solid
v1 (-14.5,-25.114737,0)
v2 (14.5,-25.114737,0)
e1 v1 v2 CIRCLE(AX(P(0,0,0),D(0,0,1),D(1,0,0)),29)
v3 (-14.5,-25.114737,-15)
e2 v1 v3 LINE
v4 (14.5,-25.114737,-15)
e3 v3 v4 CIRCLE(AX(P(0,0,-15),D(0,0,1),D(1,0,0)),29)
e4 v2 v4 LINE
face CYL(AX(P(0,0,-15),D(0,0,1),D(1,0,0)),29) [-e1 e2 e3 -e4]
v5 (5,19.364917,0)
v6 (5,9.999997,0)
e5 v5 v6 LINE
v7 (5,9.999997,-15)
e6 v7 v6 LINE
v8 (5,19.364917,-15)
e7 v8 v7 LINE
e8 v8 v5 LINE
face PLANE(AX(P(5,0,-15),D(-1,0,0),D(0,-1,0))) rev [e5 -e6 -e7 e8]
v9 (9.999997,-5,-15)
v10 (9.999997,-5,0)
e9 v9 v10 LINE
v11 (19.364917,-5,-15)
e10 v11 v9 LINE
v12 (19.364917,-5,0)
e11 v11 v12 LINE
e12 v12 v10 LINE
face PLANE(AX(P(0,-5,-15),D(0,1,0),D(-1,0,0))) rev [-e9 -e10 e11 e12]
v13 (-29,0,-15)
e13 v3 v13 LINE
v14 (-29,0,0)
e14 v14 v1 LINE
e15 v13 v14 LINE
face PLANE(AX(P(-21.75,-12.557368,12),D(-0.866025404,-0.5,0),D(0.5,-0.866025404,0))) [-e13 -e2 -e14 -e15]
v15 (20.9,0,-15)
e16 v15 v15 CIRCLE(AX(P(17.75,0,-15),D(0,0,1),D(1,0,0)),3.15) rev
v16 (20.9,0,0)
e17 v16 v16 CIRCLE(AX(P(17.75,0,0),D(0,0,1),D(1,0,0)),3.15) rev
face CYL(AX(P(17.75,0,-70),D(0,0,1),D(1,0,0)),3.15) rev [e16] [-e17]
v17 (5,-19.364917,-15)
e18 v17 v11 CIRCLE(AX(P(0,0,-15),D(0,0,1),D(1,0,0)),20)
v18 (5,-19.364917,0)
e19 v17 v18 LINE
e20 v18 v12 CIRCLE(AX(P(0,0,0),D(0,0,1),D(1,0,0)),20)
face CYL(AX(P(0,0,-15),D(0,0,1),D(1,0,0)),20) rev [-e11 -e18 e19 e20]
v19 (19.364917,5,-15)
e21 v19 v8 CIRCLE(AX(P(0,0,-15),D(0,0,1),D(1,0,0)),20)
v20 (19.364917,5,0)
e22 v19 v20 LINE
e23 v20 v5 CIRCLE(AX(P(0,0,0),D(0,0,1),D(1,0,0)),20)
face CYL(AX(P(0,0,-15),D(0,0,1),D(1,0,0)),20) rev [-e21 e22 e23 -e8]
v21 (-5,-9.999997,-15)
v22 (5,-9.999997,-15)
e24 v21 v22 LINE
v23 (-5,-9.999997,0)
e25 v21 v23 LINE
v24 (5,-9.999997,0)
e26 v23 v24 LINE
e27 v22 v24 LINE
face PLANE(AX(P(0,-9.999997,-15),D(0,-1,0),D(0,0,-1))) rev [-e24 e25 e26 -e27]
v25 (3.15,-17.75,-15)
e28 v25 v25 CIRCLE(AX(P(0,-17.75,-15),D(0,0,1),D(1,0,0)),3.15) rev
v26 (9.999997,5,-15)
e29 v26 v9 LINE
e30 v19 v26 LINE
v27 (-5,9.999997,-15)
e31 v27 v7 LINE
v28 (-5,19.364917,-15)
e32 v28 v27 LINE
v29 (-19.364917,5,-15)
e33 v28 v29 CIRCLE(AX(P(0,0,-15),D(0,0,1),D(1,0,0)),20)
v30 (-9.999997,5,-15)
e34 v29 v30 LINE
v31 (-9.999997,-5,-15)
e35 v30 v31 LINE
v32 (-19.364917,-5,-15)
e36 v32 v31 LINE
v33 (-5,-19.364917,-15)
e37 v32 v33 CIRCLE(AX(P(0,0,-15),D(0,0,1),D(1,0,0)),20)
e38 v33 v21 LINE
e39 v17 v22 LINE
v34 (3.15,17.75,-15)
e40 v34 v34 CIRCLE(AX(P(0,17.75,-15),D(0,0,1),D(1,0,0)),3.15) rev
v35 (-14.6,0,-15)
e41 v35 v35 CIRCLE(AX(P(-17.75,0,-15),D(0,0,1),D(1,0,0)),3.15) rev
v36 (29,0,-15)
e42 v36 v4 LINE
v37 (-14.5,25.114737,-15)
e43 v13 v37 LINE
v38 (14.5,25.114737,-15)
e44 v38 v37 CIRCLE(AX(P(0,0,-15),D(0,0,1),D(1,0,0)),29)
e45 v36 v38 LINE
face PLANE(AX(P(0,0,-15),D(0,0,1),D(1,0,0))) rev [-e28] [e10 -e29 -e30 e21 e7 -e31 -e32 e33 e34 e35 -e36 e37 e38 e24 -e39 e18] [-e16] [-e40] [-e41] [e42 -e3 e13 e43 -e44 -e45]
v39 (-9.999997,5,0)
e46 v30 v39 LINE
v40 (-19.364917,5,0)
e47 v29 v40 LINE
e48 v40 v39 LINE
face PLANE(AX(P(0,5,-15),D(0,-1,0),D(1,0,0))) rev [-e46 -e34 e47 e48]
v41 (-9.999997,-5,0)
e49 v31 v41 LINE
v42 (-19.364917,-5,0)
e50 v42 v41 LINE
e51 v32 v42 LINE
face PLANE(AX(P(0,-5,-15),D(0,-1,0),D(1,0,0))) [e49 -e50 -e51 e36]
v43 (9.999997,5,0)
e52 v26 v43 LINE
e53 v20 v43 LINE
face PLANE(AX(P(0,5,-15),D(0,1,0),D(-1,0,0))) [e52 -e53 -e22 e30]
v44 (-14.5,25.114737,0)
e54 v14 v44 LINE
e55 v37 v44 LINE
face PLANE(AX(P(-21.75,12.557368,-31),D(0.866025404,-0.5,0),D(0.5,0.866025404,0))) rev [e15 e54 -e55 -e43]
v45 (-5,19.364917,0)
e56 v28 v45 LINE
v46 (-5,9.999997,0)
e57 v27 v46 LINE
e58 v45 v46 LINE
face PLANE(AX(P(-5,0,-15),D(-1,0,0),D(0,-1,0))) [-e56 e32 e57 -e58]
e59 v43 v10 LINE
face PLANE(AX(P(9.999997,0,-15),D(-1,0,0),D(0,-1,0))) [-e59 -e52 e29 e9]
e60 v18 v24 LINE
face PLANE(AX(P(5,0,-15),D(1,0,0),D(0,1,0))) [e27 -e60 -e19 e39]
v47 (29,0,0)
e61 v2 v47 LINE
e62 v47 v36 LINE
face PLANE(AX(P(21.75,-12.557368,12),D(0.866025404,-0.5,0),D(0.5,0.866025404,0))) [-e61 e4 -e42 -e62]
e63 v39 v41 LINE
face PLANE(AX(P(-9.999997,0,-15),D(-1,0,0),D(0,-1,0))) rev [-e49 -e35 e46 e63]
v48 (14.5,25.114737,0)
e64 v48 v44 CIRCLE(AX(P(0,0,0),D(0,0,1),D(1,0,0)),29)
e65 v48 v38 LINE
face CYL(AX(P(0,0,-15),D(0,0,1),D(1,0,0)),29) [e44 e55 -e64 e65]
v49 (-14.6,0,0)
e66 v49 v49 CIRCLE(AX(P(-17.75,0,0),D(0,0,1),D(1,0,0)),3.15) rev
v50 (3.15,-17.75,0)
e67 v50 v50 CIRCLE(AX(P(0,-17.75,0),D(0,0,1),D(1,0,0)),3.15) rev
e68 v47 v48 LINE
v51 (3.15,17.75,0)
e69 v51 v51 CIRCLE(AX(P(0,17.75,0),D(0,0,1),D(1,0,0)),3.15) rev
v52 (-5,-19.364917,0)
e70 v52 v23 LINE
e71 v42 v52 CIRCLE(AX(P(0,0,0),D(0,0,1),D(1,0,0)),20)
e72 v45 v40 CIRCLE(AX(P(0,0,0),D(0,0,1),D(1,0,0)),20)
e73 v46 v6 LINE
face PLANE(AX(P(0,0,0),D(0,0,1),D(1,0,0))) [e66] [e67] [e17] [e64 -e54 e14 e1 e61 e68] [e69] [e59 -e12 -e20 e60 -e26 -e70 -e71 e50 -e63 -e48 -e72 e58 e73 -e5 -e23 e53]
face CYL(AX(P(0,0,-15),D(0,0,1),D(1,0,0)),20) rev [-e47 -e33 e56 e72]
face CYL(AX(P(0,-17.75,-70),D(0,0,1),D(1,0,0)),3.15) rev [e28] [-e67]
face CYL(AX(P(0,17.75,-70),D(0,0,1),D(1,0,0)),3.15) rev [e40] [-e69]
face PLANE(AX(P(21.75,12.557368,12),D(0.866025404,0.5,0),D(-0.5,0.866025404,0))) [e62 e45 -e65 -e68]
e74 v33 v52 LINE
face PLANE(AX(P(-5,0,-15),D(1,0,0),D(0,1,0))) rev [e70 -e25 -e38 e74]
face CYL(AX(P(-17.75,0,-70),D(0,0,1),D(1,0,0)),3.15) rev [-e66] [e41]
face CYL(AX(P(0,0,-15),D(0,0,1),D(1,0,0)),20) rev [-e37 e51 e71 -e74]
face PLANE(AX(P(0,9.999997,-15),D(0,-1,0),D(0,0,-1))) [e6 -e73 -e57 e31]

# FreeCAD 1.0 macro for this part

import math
import FreeCAD as App
import Part
import Sketcher
Q = App.Units.Quantity

doc = App.newDocument("Part")
body = doc.addObject("PartDesign::Body", "Body")

# Sketch on XY plane
sketch1 = body.newObject("Sketcher::SketchObject", "Sketch")
sketch1.AttachmentSupport = (doc.getObject("XY_Plane"), [""])
sketch1.MapMode = "FlatFace"
sketch1.addGeometry(Part.Circle(App.Vector(0, 0, 0), App.Vector(0, 0, 1), 29), False)
sketch1.addGeometry(Part.Circle(App.Vector(0, 0, 0), App.Vector(0, 0, 1), 20), False)
sketch1.addConstraint(Sketcher.Constraint("Coincident", 0, 3, -1, 1))
sketch1.addConstraint(Sketcher.Constraint("Coincident", 1, 3, -1, 1))
sketch1.addConstraint(Sketcher.Constraint("Diameter", 0, 58.0))
sketch1.addConstraint(Sketcher.Constraint("Diameter", 1, 40.0))
pad1 = body.newObject("PartDesign::Pad", "Pad")
pad1.Profile = sketch1
pad1.Length = 15
pad1.Reversed = True

# Sketch on XY plane
sketch2 = body.newObject("Sketcher::SketchObject", "Sketch001")
sketch2.AttachmentSupport = (doc.getObject("XY_Plane"), [""])
sketch2.MapMode = "FlatFace"
sketch2.addGeometry(Part.ArcOfCircle(Part.Circle(App.Vector(0, 0, 0), App.Vector(0, 0, 1), 20), math.radians(0), math.radians(14.48)), False)
sketch2.addGeometry(Part.LineSegment(App.Vector(19, 5, 0), App.Vector(10, 5, 0)), False)
sketch2.addGeometry(Part.LineSegment(App.Vector(10, 5, 0), App.Vector(10, -5, 0)), False)
sketch2.addGeometry(Part.LineSegment(App.Vector(10, -5, 0), App.Vector(19, -5, 0)), False)
sketch2.addGeometry(Part.ArcOfCircle(Part.Circle(App.Vector(0, 0, 0), App.Vector(0, 0, 1), 20), math.radians(-14.48), math.radians(0)), False)
sketch2.addGeometry(Part.ArcOfCircle(Part.Circle(App.Vector(0, 0, 0), App.Vector(0, 0, 1), 20), math.radians(76), math.radians(104)), False)
sketch2.addGeometry(Part.LineSegment(App.Vector(-5, 19, 0), App.Vector(-5, 10, 0)), False)
sketch2.addGeometry(Part.LineSegment(App.Vector(-5, 10, 0), App.Vector(5, 10, 0)), False)
sketch2.addGeometry(Part.LineSegment(App.Vector(5, 10, 0), App.Vector(5, 19, 0)), False)
sketch2.addGeometry(Part.LineSegment(App.Vector(-10, -5, 0), App.Vector(-10, 5, 0)), False)
sketch2.addGeometry(Part.LineSegment(App.Vector(-10, 5, 0), App.Vector(-19, 5, 0)), False)
sketch2.addGeometry(Part.ArcOfCircle(Part.Circle(App.Vector(0, 0, 0), App.Vector(0, 0, 1), 20), math.radians(166), math.radians(194)), False)
sketch2.addGeometry(Part.LineSegment(App.Vector(-19, -5, 0), App.Vector(-10, -5, 0)), False)
sketch2.addGeometry(Part.LineSegment(App.Vector(-5, -10, 0), App.Vector(-5, -19, 0)), False)
sketch2.addGeometry(Part.ArcOfCircle(Part.Circle(App.Vector(0, 0, 0), App.Vector(0, 0, 1), 20), math.radians(-104), math.radians(-76)), False)
sketch2.addGeometry(Part.LineSegment(App.Vector(5, -19, 0), App.Vector(5, -10, 0)), False)
sketch2.addGeometry(Part.LineSegment(App.Vector(5, -10, 0), App.Vector(-5, -10, 0)), False)
sketch2.addConstraint(Sketcher.Constraint("Coincident", 0, 2, 1, 1))
sketch2.addConstraint(Sketcher.Constraint("Coincident", 1, 2, 2, 1))
sketch2.addConstraint(Sketcher.Constraint("Coincident", 2, 2, 3, 1))
sketch2.addConstraint(Sketcher.Constraint("Coincident", 3, 2, 4, 1))
sketch2.addConstraint(Sketcher.Constraint("Tangent", 4, 2, 0, 1))
sketch2.addConstraint(Sketcher.Constraint("Coincident", 5, 2, 6, 1))
sketch2.addConstraint(Sketcher.Constraint("Coincident", 6, 2, 7, 1))
sketch2.addConstraint(Sketcher.Constraint("Coincident", 7, 2, 8, 1))
sketch2.addConstraint(Sketcher.Constraint("Coincident", 8, 2, 5, 1))
sketch2.addConstraint(Sketcher.Constraint("Coincident", 9, 2, 10, 1))
sketch2.addConstraint(Sketcher.Constraint("Coincident", 10, 2, 11, 1))
sketch2.addConstraint(Sketcher.Constraint("Coincident", 11, 2, 12, 1))
sketch2.addConstraint(Sketcher.Constraint("Coincident", 12, 2, 9, 1))
sketch2.addConstraint(Sketcher.Constraint("Coincident", 13, 2, 14, 1))
sketch2.addConstraint(Sketcher.Constraint("Coincident", 14, 2, 15, 1))
sketch2.addConstraint(Sketcher.Constraint("Coincident", 15, 2, 16, 1))
sketch2.addConstraint(Sketcher.Constraint("Coincident", 16, 2, 13, 1))
sketch2.addConstraint(Sketcher.Constraint("Horizontal", 1))
sketch2.addConstraint(Sketcher.Constraint("Vertical", 2))
sketch2.addConstraint(Sketcher.Constraint("Horizontal", 3))
sketch2.addConstraint(Sketcher.Constraint("Vertical", 6))
sketch2.addConstraint(Sketcher.Constraint("Horizontal", 7))
sketch2.addConstraint(Sketcher.Constraint("Vertical", 8))
sketch2.addConstraint(Sketcher.Constraint("Vertical", 9))
sketch2.addConstraint(Sketcher.Constraint("Horizontal", 10))
sketch2.addConstraint(Sketcher.Constraint("Horizontal", 12))
sketch2.addConstraint(Sketcher.Constraint("Vertical", 13))
sketch2.addConstraint(Sketcher.Constraint("Vertical", 15))
sketch2.addConstraint(Sketcher.Constraint("Horizontal", 16))
sketch2.addConstraint(Sketcher.Constraint("Coincident", 0, 3, -1, 1))
sketch2.addConstraint(Sketcher.Constraint("Coincident", 5, 3, -1, 1))
sketch2.addConstraint(Sketcher.Constraint("Coincident", 11, 3, -1, 1))
sketch2.addConstraint(Sketcher.Constraint("Coincident", 14, 3, -1, 1))
sketch2.addConstraint(Sketcher.Constraint("Equal", 0, 4))
sketch2.addConstraint(Sketcher.Constraint("Equal", 4, 5))
sketch2.addConstraint(Sketcher.Constraint("Equal", 5, 11))
sketch2.addConstraint(Sketcher.Constraint("Equal", 11, 14))
sketch2.addConstraint(Sketcher.Constraint("Symmetric", 2, 2, 9, 2, -1, 1))
sketch2.addConstraint(Sketcher.Constraint("Symmetric", 6, 2, 15, 2, -1, 1))
sketch2.addConstraint(Sketcher.Constraint("PointOnObject", 4, 2, -1))
sketch2.addConstraint(Sketcher.Constraint("Horizontal", 5, 2, 8, 2))
sketch2.addConstraint(Sketcher.Constraint("Horizontal", 1, 2, 9, 2))
sketch2.addConstraint(Sketcher.Constraint("Horizontal", 3, 2, 11, 2))
sketch2.addConstraint(Sketcher.Constraint("Horizontal", 13, 2, 14, 2))
sketch2.addConstraint(Sketcher.Constraint("Equal", 16, 2))
sketch2.addConstraint(Sketcher.Constraint("Equal", 12, 6))
sketch2.addConstraint(Sketcher.Constraint("Radius", 0, 20.0))
sketch2.addConstraint(Sketcher.Constraint("DistanceX", 7, 1, 7, 2, 10.0))
sketch2.addConstraint(Sketcher.Constraint("DistanceX", 1, 2, 1, 1, 9.36492))
pad2 = body.newObject("PartDesign::Pad", "Pad001")
pad2.Profile = sketch2
pad2.Length = 15
pad2.Reversed = True

# Sketch on XY plane
sketch3 = body.newObject("Sketcher::SketchObject", "Sketch002")
sketch3.AttachmentSupport = (doc.getObject("XY_Plane"), [""])
sketch3.MapMode = "FlatFace"
sketch3.AttachmentOffset = App.Placement(App.Vector(0, 0, -15), App.Rotation())
sketch3.addGeometry(Part.LineSegment(App.Vector(-14, 25, 0), App.Vector(-29, 0, 0)), False)
sketch3.addGeometry(Part.ArcOfCircle(Part.Circle(App.Vector(0, 0, 0), App.Vector(0, 0, 1), 29), math.radians(120), math.radians(180)), False)
sketch3.addGeometry(Part.LineSegment(App.Vector(29, 0, 0), App.Vector(14, 25, 0)), False)
sketch3.addGeometry(Part.ArcOfCircle(Part.Circle(App.Vector(0, 0, 0), App.Vector(0, 0, 1), 29), math.radians(0), math.radians(60)), False)
sketch3.addGeometry(Part.ArcOfCircle(Part.Circle(App.Vector(0, 0, 0), App.Vector(0, 0, 1), 29), math.radians(-60), math.radians(0)), False)
sketch3.addGeometry(Part.LineSegment(App.Vector(14, -25, 0), App.Vector(29, 0, 0)), False)
sketch3.addGeometry(Part.ArcOfCircle(Part.Circle(App.Vector(0, 0, 0), App.Vector(0, 0, 1), 29), math.radians(180), math.radians(240)), False)
sketch3.addGeometry(Part.LineSegment(App.Vector(-29, 0, 0), App.Vector(-14, -25, 0)), False)
sketch3.addConstraint(Sketcher.Constraint("Coincident", 0, 1, 1, 1))
sketch3.addConstraint(Sketcher.Constraint("Coincident", 1, 2, 0, 2))
sketch3.addConstraint(Sketcher.Constraint("Coincident", 2, 1, 3, 1))
sketch3.addConstraint(Sketcher.Constraint("Coincident", 3, 2, 2, 2))
sketch3.addConstraint(Sketcher.Constraint("Coincident", 4, 1, 5, 1))
sketch3.addConstraint(Sketcher.Constraint("Coincident", 5, 2, 4, 2))
sketch3.addConstraint(Sketcher.Constraint("Coincident", 6, 1, 7, 1))
sketch3.addConstraint(Sketcher.Constraint("Coincident", 7, 2, 6, 2))
sketch3.addConstraint(Sketcher.Constraint("Coincident", 1, 3, -1, 1))
sketch3.addConstraint(Sketcher.Constraint("Coincident", 3, 3, -1, 1))
sketch3.addConstraint(Sketcher.Constraint("Coincident", 4, 3, -1, 1))
sketch3.addConstraint(Sketcher.Constraint("Coincident", 6, 3, -1, 1))
sketch3.addConstraint(Sketcher.Constraint("Coincident", 5, 2, 2, 1))
sketch3.addConstraint(Sketcher.Constraint("Coincident", 6, 1, 1, 2))
sketch3.addConstraint(Sketcher.Constraint("Equal", 1, 3))
sketch3.addConstraint(Sketcher.Constraint("PointOnObject", 1, 2, -1))
sketch3.addConstraint(Sketcher.Constraint("PointOnObject", 2, 1, -1))
sketch3.addConstraint(Sketcher.Constraint("Parallel", 0, 5))
sketch3.addConstraint(Sketcher.Constraint("Parallel", 2, 7))
sketch3.addConstraint(Sketcher.Constraint("Horizontal", 0, 1, 3, 2))
sketch3.addConstraint(Sketcher.Constraint("Radius", 1, 29.0))
sketch3.addConstraint(Sketcher.Constraint("Angle", 0, Q("-120 deg")))
pocket1 = body.newObject("PartDesign::Pocket", "Pocket")
pocket1.Profile = sketch3
pocket1.Type = "ThroughAll"
pocket1.Midplane = True

# Sketch on XY plane
sketch4 = body.newObject("Sketcher::SketchObject", "Sketch003")
sketch4.AttachmentSupport = (doc.getObject("XY_Plane"), [""])
sketch4.MapMode = "FlatFace"
sketch4.AttachmentOffset = App.Placement(App.Vector(0, 0, -15), App.Rotation())
sketch4.addGeometry(Part.Circle(App.Vector(17.8, 0, 0), App.Vector(0, 0, 1), 3.1), False)
sketch4.addGeometry(Part.Circle(App.Vector(0, 17.8, 0), App.Vector(0, 0, 1), 3.1), False)
sketch4.addGeometry(Part.Circle(App.Vector(-17.8, 0, 0), App.Vector(0, 0, 1), 3.1), False)
sketch4.addGeometry(Part.Circle(App.Vector(0, -17.8, 0), App.Vector(0, 0, 1), 3.1), False)
sketch4.addConstraint(Sketcher.Constraint("Equal", 0, 1))
sketch4.addConstraint(Sketcher.Constraint("Equal", 1, 2))
sketch4.addConstraint(Sketcher.Constraint("Equal", 2, 3))
sketch4.addConstraint(Sketcher.Constraint("Symmetric", 0, 3, 2, 3, -1, 1))
sketch4.addConstraint(Sketcher.Constraint("Symmetric", 1, 3, 3, 3, -1, 1))
sketch4.addConstraint(Sketcher.Constraint("PointOnObject", 0, 3, -1))
sketch4.addConstraint(Sketcher.Constraint("PointOnObject", 1, 3, -2))
sketch4.addConstraint(Sketcher.Constraint("Diameter", 0, 6.3))
sketch4.addConstraint(Sketcher.Constraint("DistanceX", 2, 3, 0, 3, 35.5))
sketch4.addConstraint(Sketcher.Constraint("DistanceY", 3, 3, 1, 3, 35.5))
pocket2 = body.newObject("PartDesign::Pocket", "Pocket001")
pocket2.Profile = sketch4
pocket2.Type = "ThroughAll"
pocket2.Midplane = True

doc.recompute()
